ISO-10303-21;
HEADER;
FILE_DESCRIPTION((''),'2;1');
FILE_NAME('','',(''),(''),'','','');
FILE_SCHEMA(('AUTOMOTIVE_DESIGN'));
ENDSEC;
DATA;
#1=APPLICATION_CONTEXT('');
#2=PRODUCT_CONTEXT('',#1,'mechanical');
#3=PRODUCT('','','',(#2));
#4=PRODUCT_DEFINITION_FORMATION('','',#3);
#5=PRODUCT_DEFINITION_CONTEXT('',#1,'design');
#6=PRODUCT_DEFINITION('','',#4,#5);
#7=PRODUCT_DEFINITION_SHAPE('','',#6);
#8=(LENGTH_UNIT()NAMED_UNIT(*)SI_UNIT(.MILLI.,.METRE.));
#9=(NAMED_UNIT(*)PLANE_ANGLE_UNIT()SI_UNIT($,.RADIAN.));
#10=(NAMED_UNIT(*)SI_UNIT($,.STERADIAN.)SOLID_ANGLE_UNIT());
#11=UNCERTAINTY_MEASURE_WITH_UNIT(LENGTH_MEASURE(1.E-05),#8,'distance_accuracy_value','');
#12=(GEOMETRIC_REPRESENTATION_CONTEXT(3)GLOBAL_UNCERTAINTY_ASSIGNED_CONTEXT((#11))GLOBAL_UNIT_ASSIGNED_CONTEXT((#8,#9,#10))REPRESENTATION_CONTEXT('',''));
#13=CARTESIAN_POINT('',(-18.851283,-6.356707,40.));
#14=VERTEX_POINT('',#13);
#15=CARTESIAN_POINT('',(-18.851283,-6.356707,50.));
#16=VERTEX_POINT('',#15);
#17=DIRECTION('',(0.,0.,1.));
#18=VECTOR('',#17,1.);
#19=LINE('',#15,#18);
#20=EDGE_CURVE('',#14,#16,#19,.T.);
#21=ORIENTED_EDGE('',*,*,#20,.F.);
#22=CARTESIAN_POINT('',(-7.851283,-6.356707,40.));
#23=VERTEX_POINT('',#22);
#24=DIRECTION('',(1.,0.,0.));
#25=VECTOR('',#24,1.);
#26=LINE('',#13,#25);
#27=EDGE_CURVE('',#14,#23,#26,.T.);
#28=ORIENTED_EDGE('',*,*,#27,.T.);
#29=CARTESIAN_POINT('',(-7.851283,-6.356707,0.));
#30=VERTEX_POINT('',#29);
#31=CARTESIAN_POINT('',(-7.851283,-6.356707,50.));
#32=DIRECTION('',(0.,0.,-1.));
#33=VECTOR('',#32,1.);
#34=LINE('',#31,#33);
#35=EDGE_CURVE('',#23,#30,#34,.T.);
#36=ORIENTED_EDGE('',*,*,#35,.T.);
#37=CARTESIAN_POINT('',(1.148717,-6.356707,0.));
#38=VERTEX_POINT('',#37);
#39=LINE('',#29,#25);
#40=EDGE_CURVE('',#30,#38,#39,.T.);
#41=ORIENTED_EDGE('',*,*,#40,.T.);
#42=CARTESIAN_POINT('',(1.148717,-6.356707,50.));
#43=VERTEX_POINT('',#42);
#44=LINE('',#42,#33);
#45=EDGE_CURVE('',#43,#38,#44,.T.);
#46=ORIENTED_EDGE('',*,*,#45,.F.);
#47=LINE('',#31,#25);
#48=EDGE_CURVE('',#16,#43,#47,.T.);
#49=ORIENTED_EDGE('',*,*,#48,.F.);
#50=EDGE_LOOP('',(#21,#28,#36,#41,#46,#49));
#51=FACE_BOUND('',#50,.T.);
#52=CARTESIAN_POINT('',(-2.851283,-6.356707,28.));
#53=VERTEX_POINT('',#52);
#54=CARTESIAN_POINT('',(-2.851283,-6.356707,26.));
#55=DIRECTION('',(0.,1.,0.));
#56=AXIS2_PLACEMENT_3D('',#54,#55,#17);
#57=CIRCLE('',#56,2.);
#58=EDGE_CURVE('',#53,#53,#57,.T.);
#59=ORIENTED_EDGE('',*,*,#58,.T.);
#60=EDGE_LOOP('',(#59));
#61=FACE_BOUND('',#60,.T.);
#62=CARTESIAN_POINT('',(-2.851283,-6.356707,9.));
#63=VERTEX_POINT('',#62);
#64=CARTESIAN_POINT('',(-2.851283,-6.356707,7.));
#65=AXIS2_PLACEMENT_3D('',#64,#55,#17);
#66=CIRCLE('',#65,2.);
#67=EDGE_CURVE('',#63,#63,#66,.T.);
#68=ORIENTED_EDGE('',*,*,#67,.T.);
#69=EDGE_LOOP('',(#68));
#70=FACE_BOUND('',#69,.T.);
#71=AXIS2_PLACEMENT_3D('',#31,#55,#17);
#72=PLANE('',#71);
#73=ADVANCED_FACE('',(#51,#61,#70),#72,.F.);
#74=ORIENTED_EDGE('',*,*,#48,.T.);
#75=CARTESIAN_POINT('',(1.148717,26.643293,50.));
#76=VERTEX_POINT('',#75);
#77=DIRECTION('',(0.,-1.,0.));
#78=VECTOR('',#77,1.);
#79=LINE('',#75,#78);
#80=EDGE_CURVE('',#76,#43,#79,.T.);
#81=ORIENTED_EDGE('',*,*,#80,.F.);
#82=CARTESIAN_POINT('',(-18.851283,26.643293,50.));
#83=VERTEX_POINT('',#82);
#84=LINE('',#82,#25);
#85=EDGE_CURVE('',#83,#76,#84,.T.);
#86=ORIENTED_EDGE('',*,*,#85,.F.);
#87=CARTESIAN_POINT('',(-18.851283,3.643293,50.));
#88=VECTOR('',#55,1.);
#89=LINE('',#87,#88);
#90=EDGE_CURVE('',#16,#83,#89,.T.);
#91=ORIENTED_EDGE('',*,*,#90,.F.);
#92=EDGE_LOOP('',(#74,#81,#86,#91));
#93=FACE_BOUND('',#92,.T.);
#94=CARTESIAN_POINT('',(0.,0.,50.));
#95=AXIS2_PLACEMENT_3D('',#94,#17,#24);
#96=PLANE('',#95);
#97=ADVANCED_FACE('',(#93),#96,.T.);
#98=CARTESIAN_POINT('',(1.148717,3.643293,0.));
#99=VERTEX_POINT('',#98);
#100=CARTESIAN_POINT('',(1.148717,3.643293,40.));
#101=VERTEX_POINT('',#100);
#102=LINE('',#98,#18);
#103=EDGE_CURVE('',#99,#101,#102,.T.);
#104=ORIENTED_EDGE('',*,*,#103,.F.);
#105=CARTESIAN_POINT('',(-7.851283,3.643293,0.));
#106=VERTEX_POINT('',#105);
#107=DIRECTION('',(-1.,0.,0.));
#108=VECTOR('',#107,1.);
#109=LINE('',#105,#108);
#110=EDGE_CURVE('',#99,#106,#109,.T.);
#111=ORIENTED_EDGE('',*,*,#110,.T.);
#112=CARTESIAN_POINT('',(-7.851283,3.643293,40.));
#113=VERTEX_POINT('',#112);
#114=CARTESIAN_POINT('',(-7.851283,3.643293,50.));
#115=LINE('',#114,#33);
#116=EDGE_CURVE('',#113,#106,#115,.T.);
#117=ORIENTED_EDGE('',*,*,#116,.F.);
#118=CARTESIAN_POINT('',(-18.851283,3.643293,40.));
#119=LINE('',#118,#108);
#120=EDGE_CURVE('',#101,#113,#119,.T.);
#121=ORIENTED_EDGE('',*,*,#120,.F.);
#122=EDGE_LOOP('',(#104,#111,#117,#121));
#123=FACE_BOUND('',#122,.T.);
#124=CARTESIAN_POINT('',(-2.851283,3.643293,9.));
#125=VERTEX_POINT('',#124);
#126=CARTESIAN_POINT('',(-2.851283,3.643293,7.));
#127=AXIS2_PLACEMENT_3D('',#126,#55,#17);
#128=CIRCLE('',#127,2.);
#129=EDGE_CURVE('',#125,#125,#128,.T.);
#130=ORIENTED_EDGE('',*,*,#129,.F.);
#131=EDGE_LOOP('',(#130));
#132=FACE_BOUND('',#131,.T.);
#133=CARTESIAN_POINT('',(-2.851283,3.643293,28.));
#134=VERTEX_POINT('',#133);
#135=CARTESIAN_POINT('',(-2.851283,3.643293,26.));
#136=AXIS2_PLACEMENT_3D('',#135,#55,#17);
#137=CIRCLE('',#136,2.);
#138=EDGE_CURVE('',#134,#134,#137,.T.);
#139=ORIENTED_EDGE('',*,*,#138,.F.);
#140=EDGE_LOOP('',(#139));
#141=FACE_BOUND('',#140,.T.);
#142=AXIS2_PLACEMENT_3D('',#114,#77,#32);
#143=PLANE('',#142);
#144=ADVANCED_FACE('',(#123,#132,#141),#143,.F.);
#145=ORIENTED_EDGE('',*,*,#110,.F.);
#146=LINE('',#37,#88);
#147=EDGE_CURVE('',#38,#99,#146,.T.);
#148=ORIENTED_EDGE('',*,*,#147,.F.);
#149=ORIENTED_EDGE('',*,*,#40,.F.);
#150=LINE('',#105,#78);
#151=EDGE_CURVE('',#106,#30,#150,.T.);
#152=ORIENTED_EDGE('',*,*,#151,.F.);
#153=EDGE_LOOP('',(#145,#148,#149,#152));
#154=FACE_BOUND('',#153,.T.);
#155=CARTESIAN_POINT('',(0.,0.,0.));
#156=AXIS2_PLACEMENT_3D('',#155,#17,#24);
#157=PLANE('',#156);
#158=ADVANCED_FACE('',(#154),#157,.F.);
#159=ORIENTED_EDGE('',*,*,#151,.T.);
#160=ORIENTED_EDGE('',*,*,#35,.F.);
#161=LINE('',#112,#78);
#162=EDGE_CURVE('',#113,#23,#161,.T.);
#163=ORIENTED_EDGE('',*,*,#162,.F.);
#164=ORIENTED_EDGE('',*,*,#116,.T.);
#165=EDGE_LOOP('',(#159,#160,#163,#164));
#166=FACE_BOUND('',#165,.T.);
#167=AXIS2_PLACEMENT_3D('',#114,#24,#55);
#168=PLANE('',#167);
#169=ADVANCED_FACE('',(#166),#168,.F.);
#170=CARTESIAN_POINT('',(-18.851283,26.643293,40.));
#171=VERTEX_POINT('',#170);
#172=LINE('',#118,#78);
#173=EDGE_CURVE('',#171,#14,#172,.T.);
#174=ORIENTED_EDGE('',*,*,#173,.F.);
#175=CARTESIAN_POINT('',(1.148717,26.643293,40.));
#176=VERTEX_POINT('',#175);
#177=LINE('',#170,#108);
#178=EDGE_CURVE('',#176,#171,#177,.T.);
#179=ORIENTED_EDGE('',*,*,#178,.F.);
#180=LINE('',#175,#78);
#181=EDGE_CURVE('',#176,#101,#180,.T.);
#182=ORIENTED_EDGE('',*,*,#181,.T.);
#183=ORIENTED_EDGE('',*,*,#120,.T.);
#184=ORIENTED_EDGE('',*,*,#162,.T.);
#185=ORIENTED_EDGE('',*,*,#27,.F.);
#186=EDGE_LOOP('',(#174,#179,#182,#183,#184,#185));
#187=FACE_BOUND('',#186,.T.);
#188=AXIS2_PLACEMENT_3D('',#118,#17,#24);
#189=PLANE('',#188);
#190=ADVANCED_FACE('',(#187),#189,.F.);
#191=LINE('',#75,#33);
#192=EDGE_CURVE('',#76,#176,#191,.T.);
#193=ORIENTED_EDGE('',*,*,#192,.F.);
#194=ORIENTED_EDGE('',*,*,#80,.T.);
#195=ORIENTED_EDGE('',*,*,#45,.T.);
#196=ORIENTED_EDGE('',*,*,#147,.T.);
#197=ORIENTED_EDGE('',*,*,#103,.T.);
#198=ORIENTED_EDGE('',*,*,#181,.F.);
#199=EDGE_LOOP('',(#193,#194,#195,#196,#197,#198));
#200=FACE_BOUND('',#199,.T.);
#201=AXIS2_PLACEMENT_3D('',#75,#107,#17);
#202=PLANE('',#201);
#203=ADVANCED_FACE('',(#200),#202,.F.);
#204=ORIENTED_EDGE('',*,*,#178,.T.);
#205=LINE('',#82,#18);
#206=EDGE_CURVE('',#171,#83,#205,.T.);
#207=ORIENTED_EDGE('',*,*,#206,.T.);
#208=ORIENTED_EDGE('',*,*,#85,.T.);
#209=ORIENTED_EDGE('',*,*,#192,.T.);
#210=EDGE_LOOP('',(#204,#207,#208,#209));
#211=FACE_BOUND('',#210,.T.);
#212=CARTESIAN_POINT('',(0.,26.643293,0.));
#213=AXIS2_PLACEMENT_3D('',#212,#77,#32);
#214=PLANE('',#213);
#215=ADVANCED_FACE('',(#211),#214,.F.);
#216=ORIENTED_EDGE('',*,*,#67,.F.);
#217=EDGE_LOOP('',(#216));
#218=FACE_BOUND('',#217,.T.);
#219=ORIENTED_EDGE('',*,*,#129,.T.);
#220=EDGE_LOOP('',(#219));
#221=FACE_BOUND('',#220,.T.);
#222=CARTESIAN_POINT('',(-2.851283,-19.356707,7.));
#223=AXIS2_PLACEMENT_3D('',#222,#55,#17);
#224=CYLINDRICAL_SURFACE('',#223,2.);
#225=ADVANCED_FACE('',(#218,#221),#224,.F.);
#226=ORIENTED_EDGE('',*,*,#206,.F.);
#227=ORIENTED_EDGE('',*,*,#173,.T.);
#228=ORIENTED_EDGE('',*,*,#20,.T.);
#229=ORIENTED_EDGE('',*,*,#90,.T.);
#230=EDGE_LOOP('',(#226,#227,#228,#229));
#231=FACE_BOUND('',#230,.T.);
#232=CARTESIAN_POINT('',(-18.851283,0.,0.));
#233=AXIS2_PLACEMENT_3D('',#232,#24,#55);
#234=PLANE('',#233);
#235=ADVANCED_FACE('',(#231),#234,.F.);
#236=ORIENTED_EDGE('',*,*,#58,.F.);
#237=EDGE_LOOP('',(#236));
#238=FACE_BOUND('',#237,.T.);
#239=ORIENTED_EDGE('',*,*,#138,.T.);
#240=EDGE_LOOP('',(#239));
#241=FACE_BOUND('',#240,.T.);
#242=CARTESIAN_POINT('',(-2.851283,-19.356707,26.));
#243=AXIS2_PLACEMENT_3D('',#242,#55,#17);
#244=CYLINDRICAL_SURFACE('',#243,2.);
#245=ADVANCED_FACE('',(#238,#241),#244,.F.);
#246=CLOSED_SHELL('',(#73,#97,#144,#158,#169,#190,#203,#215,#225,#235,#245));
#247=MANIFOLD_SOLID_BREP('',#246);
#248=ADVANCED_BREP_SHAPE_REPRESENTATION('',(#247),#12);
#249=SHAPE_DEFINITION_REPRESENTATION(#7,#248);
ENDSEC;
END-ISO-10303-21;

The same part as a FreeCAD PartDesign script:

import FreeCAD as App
import Part
import Sketcher

V = App.Vector
Q = App.Units.Quantity


def add_polygon(sketch, points):
    """Adds a closed chain of lines whose ends are joined by coincident constraints."""
    first, n = sketch.GeometryCount, len(points)
    for a, b in zip(points, points[1:] + points[:1]):
        sketch.addGeometry(Part.LineSegment(App.Vector(*a, 0), App.Vector(*b, 0)), False)
    for i in range(n):
        sketch.addConstraint(Sketcher.Constraint("Coincident", first + i, 2, first + (i + 1) % n, 1))

doc = App.newDocument("Part")
body = doc.addObject("PartDesign::Body", "Body")

sketch1 = body.newObject("Sketcher::SketchObject", "Sketch")
sketch1.AttachmentSupport = (doc.getObject("XY_Plane"), [""])
sketch1.MapMode = "FlatFace"
add_polygon(sketch1, [(-7.851283, 3.643293), (-7.851283, -6.356707), (2.148717, -6.356707), (2.148717, 3.643293)])
sketch1.addConstraint([
    Sketcher.Constraint("Vertical", 0),
    Sketcher.Constraint("Horizontal", 1),
    Sketcher.Constraint("Vertical", 2),
    Sketcher.Constraint("Horizontal", 3),
    Sketcher.Constraint("Equal", 3, 0),
    Sketcher.Constraint("DistanceX", 1, 1, 1, 2, Q("10 mm")),
    Sketcher.Constraint("DistanceX", 0, 2, -1, 1, Q("7.851283 mm")),
    Sketcher.Constraint("DistanceY", 0, 2, -1, 1, Q("6.356707 mm")),
])
pad1 = body.newObject("PartDesign::Pad", "Pad")
pad1.Profile = sketch1
pad1.Length = 50

sketch2 = body.newObject("Sketcher::SketchObject", "Sketch001")
sketch2.AttachmentSupport = (doc.getObject("YZ_Plane"), [""])
sketch2.MapMode = "FlatFace"
sketch2.AttachmentOffset = App.Placement(V(0, 0, -7.851283), App.Rotation())
add_polygon(sketch2, [(3.643293, 40), (-6.356707, 40), (-6.356707, 50), (3.643293, 50)])
sketch2.addConstraint([
    Sketcher.Constraint("Horizontal", 0),
    Sketcher.Constraint("Vertical", 1),
    Sketcher.Constraint("Horizontal", 2),
    Sketcher.Constraint("Vertical", 3),
    Sketcher.Constraint("Equal", 2, 1),
    Sketcher.Constraint("DistanceX", 0, 2, 0, 1, Q("10 mm")),
    Sketcher.Constraint("DistanceY", -1, 1, 0, 2, Q("40 mm")),
    Sketcher.Constraint("DistanceX", 0, 2, -1, 1, Q("6.356707 mm")),
])
pad2 = body.newObject("PartDesign::Pad", "Pad001")
pad2.Profile = sketch2
pad2.Length = 11
pad2.Reversed = True

sketch3 = body.newObject("Sketcher::SketchObject", "Sketch002")
sketch3.AttachmentSupport = (doc.getObject("XZ_Plane"), [""])
sketch3.MapMode = "FlatFace"
sketch3.AttachmentOffset = App.Placement(V(0, 0, -3.643293), App.Rotation())
add_polygon(sketch3, [(-18.851283, 40), (-18.851283, 50), (1.148717, 50), (1.148717, 40)])
sketch3.addConstraint([
    Sketcher.Constraint("Vertical", 0),
    Sketcher.Constraint("Horizontal", 1),
    Sketcher.Constraint("Vertical", 2),
    Sketcher.Constraint("Horizontal", 3),
    Sketcher.Constraint("DistanceX", 1, 1, 1, 2, Q("20 mm")),
    Sketcher.Constraint("DistanceY", 0, 1, 0, 2, Q("10 mm")),
    Sketcher.Constraint("DistanceY", -1, 1, 0, 2, Q("50 mm")),
    Sketcher.Constraint("DistanceX", 0, 2, -1, 1, Q("18.851283 mm")),
])
pad3 = body.newObject("PartDesign::Pad", "Pad002")
pad3.Profile = sketch3
pad3.Length = 23
pad3.Reversed = True

sketch4 = body.newObject("Sketcher::SketchObject", "Sketch003")
sketch4.AttachmentSupport = (doc.getObject("XZ_Plane"), [""])
sketch4.MapMode = "FlatFace"
sketch4.AttachmentOffset = App.Placement(V(0, 0, -3.643293), App.Rotation())
sketch4.addGeometry(Part.Circle(V(-2.851283, 7, 0), V(0, 0, 1), 2), False)
sketch4.addConstraint([
    Sketcher.Constraint("Diameter", 0, Q("4 mm")),
    Sketcher.Constraint("DistanceY", -1, 1, 0, 3, Q("7 mm")),
    Sketcher.Constraint("DistanceX", 0, 3, -1, 1, Q("2.851283 mm")),
])
pocket1 = body.newObject("PartDesign::Pocket", "Pocket")
pocket1.Profile = sketch4
pocket1.Length = 23
pocket1.Reversed = True

sketch5 = body.newObject("Sketcher::SketchObject", "Sketch004")
sketch5.AttachmentSupport = (doc.getObject("XZ_Plane"), [""])
sketch5.MapMode = "FlatFace"
sketch5.AttachmentOffset = App.Placement(V(0, 0, -3.643293), App.Rotation())
sketch5.addGeometry(Part.Circle(V(-2.851283, 26, 0), V(0, 0, 1), 2), False)
sketch5.addConstraint([
    Sketcher.Constraint("Diameter", 0, Q("4 mm")),
    Sketcher.Constraint("DistanceY", -1, 1, 0, 3, Q("26 mm")),
    Sketcher.Constraint("DistanceX", 0, 3, -1, 1, Q("2.851283 mm")),
])
pocket2 = body.newObject("PartDesign::Pocket", "Pocket001")
pocket2.Profile = sketch5
pocket2.Length = 23
pocket2.Reversed = True

sketch6 = body.newObject("Sketcher::SketchObject", "Sketch005")
sketch6.AttachmentSupport = (doc.getObject("YZ_Plane"), [""])
sketch6.MapMode = "FlatFace"
sketch6.AttachmentOffset = App.Placement(V(0, 0, 2.148717), App.Rotation())
add_polygon(sketch6, [(3.643293, 50), (-6.356707, 50), (-6.356707, 0), (3.643293, 0)])
sketch6.addConstraint([
    Sketcher.Constraint("Horizontal", 0),
    Sketcher.Constraint("Vertical", 1),
    Sketcher.Constraint("Horizontal", 2),
    Sketcher.Constraint("Vertical", 3),
    Sketcher.Constraint("PointOnObject", 1, 2, -1),
    Sketcher.Constraint("DistanceX", 0, 2, 0, 1, Q("10 mm")),
    Sketcher.Constraint("DistanceY", 1, 2, 1, 1, Q("50 mm")),
    Sketcher.Constraint("DistanceX", 0, 2, -1, 1, Q("6.356707 mm")),
])
pocket3 = body.newObject("PartDesign::Pocket", "Pocket002")
pocket3.Profile = sketch6
pocket3.Length = 1

doc.recompute()
